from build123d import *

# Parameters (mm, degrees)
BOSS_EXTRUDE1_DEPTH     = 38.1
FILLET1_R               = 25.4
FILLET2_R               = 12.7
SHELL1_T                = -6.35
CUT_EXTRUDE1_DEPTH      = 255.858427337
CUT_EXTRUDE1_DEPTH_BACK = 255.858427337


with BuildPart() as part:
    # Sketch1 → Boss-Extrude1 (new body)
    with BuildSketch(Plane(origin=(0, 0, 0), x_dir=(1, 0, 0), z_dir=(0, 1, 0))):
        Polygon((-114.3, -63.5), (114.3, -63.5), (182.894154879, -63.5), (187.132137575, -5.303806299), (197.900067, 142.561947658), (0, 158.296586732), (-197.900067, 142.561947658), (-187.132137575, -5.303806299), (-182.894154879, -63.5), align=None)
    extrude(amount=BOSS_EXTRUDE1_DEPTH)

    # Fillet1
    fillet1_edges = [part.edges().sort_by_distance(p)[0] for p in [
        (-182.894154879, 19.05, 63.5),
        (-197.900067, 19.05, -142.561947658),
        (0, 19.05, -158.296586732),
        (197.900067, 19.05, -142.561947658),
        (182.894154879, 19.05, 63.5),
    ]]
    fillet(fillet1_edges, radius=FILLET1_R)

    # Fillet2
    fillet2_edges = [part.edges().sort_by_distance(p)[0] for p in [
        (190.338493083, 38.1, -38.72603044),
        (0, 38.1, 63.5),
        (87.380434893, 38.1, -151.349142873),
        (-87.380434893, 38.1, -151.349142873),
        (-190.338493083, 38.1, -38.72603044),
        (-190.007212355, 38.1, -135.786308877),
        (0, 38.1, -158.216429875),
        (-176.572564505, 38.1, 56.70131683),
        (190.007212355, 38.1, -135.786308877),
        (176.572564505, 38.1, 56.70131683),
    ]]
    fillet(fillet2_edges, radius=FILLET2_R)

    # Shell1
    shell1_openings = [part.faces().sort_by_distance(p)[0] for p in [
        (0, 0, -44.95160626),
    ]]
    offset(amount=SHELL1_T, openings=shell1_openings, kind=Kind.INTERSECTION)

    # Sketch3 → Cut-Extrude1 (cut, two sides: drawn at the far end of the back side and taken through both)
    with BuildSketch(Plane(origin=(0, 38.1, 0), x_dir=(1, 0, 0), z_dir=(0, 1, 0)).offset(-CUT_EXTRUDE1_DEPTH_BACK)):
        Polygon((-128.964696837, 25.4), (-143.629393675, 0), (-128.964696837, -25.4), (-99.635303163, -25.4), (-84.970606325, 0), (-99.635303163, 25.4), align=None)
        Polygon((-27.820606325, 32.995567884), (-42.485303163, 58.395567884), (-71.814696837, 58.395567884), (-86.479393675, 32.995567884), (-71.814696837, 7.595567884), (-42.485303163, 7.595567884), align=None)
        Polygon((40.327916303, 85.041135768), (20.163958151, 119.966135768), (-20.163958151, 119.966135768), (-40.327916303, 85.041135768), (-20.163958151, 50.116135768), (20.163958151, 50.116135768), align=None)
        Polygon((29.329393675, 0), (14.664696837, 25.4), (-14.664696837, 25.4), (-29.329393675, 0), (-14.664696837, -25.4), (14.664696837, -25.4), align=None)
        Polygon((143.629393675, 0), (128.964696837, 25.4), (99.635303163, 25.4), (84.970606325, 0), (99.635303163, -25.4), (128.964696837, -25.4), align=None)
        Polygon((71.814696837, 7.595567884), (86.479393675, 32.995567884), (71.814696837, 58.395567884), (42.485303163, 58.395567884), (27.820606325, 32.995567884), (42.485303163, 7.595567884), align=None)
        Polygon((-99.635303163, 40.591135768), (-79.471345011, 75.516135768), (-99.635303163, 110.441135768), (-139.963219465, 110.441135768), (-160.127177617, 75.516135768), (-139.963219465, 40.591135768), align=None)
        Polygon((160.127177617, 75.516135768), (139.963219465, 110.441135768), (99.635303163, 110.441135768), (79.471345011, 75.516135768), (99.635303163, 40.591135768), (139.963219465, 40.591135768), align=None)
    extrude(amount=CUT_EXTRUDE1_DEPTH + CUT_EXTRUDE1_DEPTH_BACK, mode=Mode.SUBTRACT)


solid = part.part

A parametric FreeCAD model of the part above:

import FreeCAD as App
import Part
import Sketcher

V = App.Vector
Q = App.Units.Quantity


def edges_at(feature, points):
    """Names of the edges that pass closest to the given points."""
    edges = feature.Shape.Edges
    near = lambda p: min(range(len(edges)), key=lambda i: edges[i].distToShape(Part.Vertex(*p))[0])
    return sorted({f"Edge{near(p) + 1}" for p in points})


def faces_at(feature, points):
    """Names of the faces that lie closest to the given points."""
    faces = feature.Shape.Faces
    near = lambda p: min(range(len(faces)), key=lambda i: faces[i].distToShape(Part.Vertex(*p))[0])
    return sorted({f"Face{near(p) + 1}" for p in points})

doc = App.newDocument("Part")
params = doc.addObject("Spreadsheet::Sheet", "Params")
for row, (alias, value) in enumerate([
    ("pad1_length", "1.5 in"),
    ("fillet_radius", "1 in"),
    ("fillet2_radius", "0.5 in"),
    ("thickness_wall", "0.25 in"),
], start=1):
    params.set(f"A{row}", alias)
    params.set(f"B{row}", "=" + value)
    params.setAlias(f"B{row}", alias)

body = doc.addObject("PartDesign::Body", "Body")

# Sketch on XZ plane
sketch1 = doc.addObject("Sketcher::SketchObject", "Sketch")
body.addObject(sketch1)
sketch1.AttachmentSupport = (doc.XZ_Plane, [""])
sketch1.MapMode = "FlatFace"
sketch1.addGeometry([
    Part.LineSegment(V(182.894155, 63.5, 0), V(187.132138, 5.303806, 0)),  # 0
    Part.LineSegment(V(187.132138, 5.303806, 0), V(197.900067, -142.561948, 0)),  # 1
    Part.LineSegment(V(197.900067, -142.561948, 0), V(0, -158.296587, 0)),  # 2
    Part.LineSegment(V(0, -158.296587, 0), V(-197.900067, -142.561948, 0)),  # 3
    Part.LineSegment(V(-197.900067, -142.561948, 0), V(-187.132138, 5.303806, 0)),  # 4
    Part.LineSegment(V(-187.132138, 5.303806, 0), V(-182.894155, 63.5, 0)),  # 5
    Part.LineSegment(V(-182.894155, 63.5, 0), V(182.894155, 63.5, 0)),  # 6
], False)
sketch1.addConstraint([
    Sketcher.Constraint("Coincident", 0, 2, 1, 1),
    Sketcher.Constraint("Coincident", 1, 2, 2, 1),
    Sketcher.Constraint("Coincident", 2, 2, 3, 1),
    Sketcher.Constraint("Coincident", 3, 2, 4, 1),
    Sketcher.Constraint("Coincident", 4, 2, 5, 1),
    Sketcher.Constraint("Coincident", 5, 2, 6, 1),
    Sketcher.Constraint("Coincident", 6, 2, 0, 1),
    Sketcher.Constraint("Horizontal", 6),
    Sketcher.Constraint("Symmetric", 1, 2, 3, 2, -2),
    Sketcher.Constraint("Symmetric", 0, 2, 4, 2, -2),
    Sketcher.Constraint("PointOnObject", 2, 2, -2),
    Sketcher.Constraint("Parallel", 0, 1),
    Sketcher.Constraint("Parallel", 4, 5),
    Sketcher.Constraint("DistanceY", -1, 1, 5, 2, Q("2.5 in")),
    Sketcher.Constraint("Distance", 0, 58.3503),
    Sketcher.Constraint("DistanceX", 6, 1, 6, 2, 365.78831),
    Sketcher.Constraint("Distance", 1, 148.257308),
    Sketcher.Constraint("DistanceX", 0, 2, 1, 2, 10.767929),
    Sketcher.Constraint("DistanceY", 2, 2, 1, 2, 15.734639),
])
pad1 = doc.addObject("PartDesign::Pad", "Pad")
body.addObject(pad1)
pad1.Profile = sketch1
pad1.setExpression("Length", "Params.pad1_length")
pad1.Reversed = True
doc.recompute()

fillet = doc.addObject("PartDesign::Fillet", "Fillet")
body.addObject(fillet)
fillet.Base = (pad1, edges_at(pad1, [
    (-182.894, 19.05, 63.5),
    (-197.9, 19.05, -142.562),
    (0, 19.05, -158.297),
    (197.9, 19.05, -142.562),
    (182.894, 19.05, 63.5),
]))
fillet.setExpression("Radius", "Params.fillet_radius")
doc.recompute()

fillet2 = doc.addObject("PartDesign::Fillet", "Fillet001")
body.addObject(fillet2)
fillet2.Base = (fillet, edges_at(fillet, [
    (191.6, 38.1, -56.047),
    (0, 38.1, 63.5),
    (87.38, 38.1, -151.349),
    (-87.38, 38.1, -151.349),
    (-191.6, 38.1, -56.047),
    (-190.007, 38.1, -135.786),
    (0, 38.1, -158.216),
    (-176.573, 38.1, 56.701),
    (190.007, 38.1, -135.786),
    (176.573, 38.1, 56.701),
]))
fillet2.setExpression("Radius", "Params.fillet2_radius")
doc.recompute()

thickness = doc.addObject("PartDesign::Thickness", "Thickness")
body.addObject(thickness)
thickness.Base = (fillet2, faces_at(fillet2, [(0, 0, -47.358)]))
thickness.setExpression("Value", "Params.thickness_wall")
thickness.Reversed = True
thickness.Join = "Intersection"

# Sketch on XZ plane
sketch2 = doc.addObject("Sketcher::SketchObject", "Sketch001")
body.addObject(sketch2)
sketch2.AttachmentSupport = (doc.XZ_Plane, [""])
sketch2.MapMode = "FlatFace"
sketch2.AttachmentOffset = App.Placement(V(0, 0, -1.5 * 25.4), App.Rotation())
sketch2.addGeometry([
    Part.LineSegment(V(-128.964697, -25.4, 0), V(-143.629394, 0, 0)),  # 0
    Part.LineSegment(V(-143.629394, 0, 0), V(-128.964697, 25.4, 0)),  # 1
    Part.LineSegment(V(-128.964697, 25.4, 0), V(-99.635303, 25.4, 0)),  # 2
    Part.LineSegment(V(-99.635303, 25.4, 0), V(-84.970606, 0, 0)),  # 3
    Part.LineSegment(V(-84.970606, 0, 0), V(-99.635303, -25.4, 0)),  # 4
    Part.LineSegment(V(-99.635303, -25.4, 0), V(-128.964697, -25.4, 0)),  # 5
    Part.LineSegment(V(-27.820606, -32.995568, 0), V(-42.485303, -58.395568, 0)),  # 6
    Part.LineSegment(V(-42.485303, -58.395568, 0), V(-71.814697, -58.395568, 0)),  # 7
    Part.LineSegment(V(-71.814697, -58.395568, 0), V(-86.479394, -32.995568, 0)),  # 8
    Part.LineSegment(V(-86.479394, -32.995568, 0), V(-71.814697, -7.595568, 0)),  # 9
    Part.LineSegment(V(-71.814697, -7.595568, 0), V(-42.485303, -7.595568, 0)),  # 10
    Part.LineSegment(V(-42.485303, -7.595568, 0), V(-27.820606, -32.995568, 0)),  # 11
    Part.LineSegment(V(40.327916, -85.041136, 0), V(20.163958, -119.966136, 0)),  # 12
    Part.LineSegment(V(20.163958, -119.966136, 0), V(-20.163958, -119.966136, 0)),  # 13
    Part.LineSegment(V(-20.163958, -119.966136, 0), V(-40.327916, -85.041136, 0)),  # 14
    Part.LineSegment(V(-40.327916, -85.041136, 0), V(-20.163958, -50.116136, 0)),  # 15
    Part.LineSegment(V(-20.163958, -50.116136, 0), V(20.163958, -50.116136, 0)),  # 16
    Part.LineSegment(V(20.163958, -50.116136, 0), V(40.327916, -85.041136, 0)),  # 17
    Part.LineSegment(V(29.329394, 0, 0), V(14.664697, -25.4, 0)),  # 18
    Part.LineSegment(V(14.664697, -25.4, 0), V(-14.664697, -25.4, 0)),  # 19
    Part.LineSegment(V(-14.664697, -25.4, 0), V(-29.329394, 0, 0)),  # 20
    Part.LineSegment(V(-29.329394, 0, 0), V(-14.664697, 25.4, 0)),  # 21
    Part.LineSegment(V(-14.664697, 25.4, 0), V(14.664697, 25.4, 0)),  # 22
    Part.LineSegment(V(14.664697, 25.4, 0), V(29.329394, 0, 0)),  # 23
    Part.LineSegment(V(143.629394, 0, 0), V(128.964697, -25.4, 0)),  # 24
    Part.LineSegment(V(128.964697, -25.4, 0), V(99.635303, -25.4, 0)),  # 25
    Part.LineSegment(V(99.635303, -25.4, 0), V(84.970606, 0, 0)),  # 26
    Part.LineSegment(V(84.970606, 0, 0), V(99.635303, 25.4, 0)),  # 27
    Part.LineSegment(V(99.635303, 25.4, 0), V(128.964697, 25.4, 0)),  # 28
    Part.LineSegment(V(128.964697, 25.4, 0), V(143.629394, 0, 0)),  # 29
    Part.LineSegment(V(71.814697, -7.595568, 0), V(86.479394, -32.995568, 0)),  # 30
    Part.LineSegment(V(86.479394, -32.995568, 0), V(71.814697, -58.395568, 0)),  # 31
    Part.LineSegment(V(71.814697, -58.395568, 0), V(42.485303, -58.395568, 0)),  # 32
    Part.LineSegment(V(42.485303, -58.395568, 0), V(27.820606, -32.995568, 0)),  # 33
    Part.LineSegment(V(27.820606, -32.995568, 0), V(42.485303, -7.595568, 0)),  # 34
    Part.LineSegment(V(42.485303, -7.595568, 0), V(71.814697, -7.595568, 0)),  # 35
    Part.LineSegment(V(-99.635303, -40.591136, 0), V(-79.471345, -75.516136, 0)),  # 36
    Part.LineSegment(V(-79.471345, -75.516136, 0), V(-99.635303, -110.441136, 0)),  # 37
    Part.LineSegment(V(-99.635303, -110.441136, 0), V(-139.963219, -110.441136, 0)),  # 38
    Part.LineSegment(V(-139.963219, -110.441136, 0), V(-160.127178, -75.516136, 0)),  # 39
    Part.LineSegment(V(-160.127178, -75.516136, 0), V(-139.963219, -40.591136, 0)),  # 40
    Part.LineSegment(V(-139.963219, -40.591136, 0), V(-99.635303, -40.591136, 0)),  # 41
    Part.LineSegment(V(160.127178, -75.516136, 0), V(139.963219, -110.441136, 0)),  # 42
    Part.LineSegment(V(139.963219, -110.441136, 0), V(99.635303, -110.441136, 0)),  # 43
    Part.LineSegment(V(99.635303, -110.441136, 0), V(79.471345, -75.516136, 0)),  # 44
    Part.LineSegment(V(79.471345, -75.516136, 0), V(99.635303, -40.591136, 0)),  # 45
    Part.LineSegment(V(99.635303, -40.591136, 0), V(139.963219, -40.591136, 0)),  # 46
    Part.LineSegment(V(139.963219, -40.591136, 0), V(160.127178, -75.516136, 0)),  # 47
], False)
sketch2.addConstraint([
    Sketcher.Constraint("Coincident", 0, 2, 1, 1),
    Sketcher.Constraint("Coincident", 1, 2, 2, 1),
    Sketcher.Constraint("Coincident", 2, 2, 3, 1),
    Sketcher.Constraint("Coincident", 3, 2, 4, 1),
    Sketcher.Constraint("Coincident", 4, 2, 5, 1),
    Sketcher.Constraint("Coincident", 5, 2, 0, 1),
    Sketcher.Constraint("Coincident", 6, 2, 7, 1),
    Sketcher.Constraint("Coincident", 7, 2, 8, 1),
    Sketcher.Constraint("Coincident", 8, 2, 9, 1),
    Sketcher.Constraint("Coincident", 9, 2, 10, 1),
    Sketcher.Constraint("Coincident", 10, 2, 11, 1),
    Sketcher.Constraint("Coincident", 11, 2, 6, 1),
    Sketcher.Constraint("Coincident", 12, 2, 13, 1),
    Sketcher.Constraint("Coincident", 13, 2, 14, 1),
    Sketcher.Constraint("Coincident", 14, 2, 15, 1),
    Sketcher.Constraint("Coincident", 15, 2, 16, 1),
    Sketcher.Constraint("Coincident", 16, 2, 17, 1),
    Sketcher.Constraint("Coincident", 17, 2, 12, 1),
    Sketcher.Constraint("Coincident", 18, 2, 19, 1),
    Sketcher.Constraint("Coincident", 19, 2, 20, 1),
    Sketcher.Constraint("Coincident", 20, 2, 21, 1),
    Sketcher.Constraint("Coincident", 21, 2, 22, 1),
    Sketcher.Constraint("Coincident", 22, 2, 23, 1),
    Sketcher.Constraint("Coincident", 23, 2, 18, 1),
    Sketcher.Constraint("Coincident", 24, 2, 25, 1),
    Sketcher.Constraint("Coincident", 25, 2, 26, 1),
    Sketcher.Constraint("Coincident", 26, 2, 27, 1),
    Sketcher.Constraint("Coincident", 27, 2, 28, 1),
    Sketcher.Constraint("Coincident", 28, 2, 29, 1),
    Sketcher.Constraint("Coincident", 29, 2, 24, 1),
    Sketcher.Constraint("Coincident", 30, 2, 31, 1),
    Sketcher.Constraint("Coincident", 31, 2, 32, 1),
    Sketcher.Constraint("Coincident", 32, 2, 33, 1),
    Sketcher.Constraint("Coincident", 33, 2, 34, 1),
    Sketcher.Constraint("Coincident", 34, 2, 35, 1),
    Sketcher.Constraint("Coincident", 35, 2, 30, 1),
    Sketcher.Constraint("Coincident", 36, 2, 37, 1),
    Sketcher.Constraint("Coincident", 37, 2, 38, 1),
    Sketcher.Constraint("Coincident", 38, 2, 39, 1),
    Sketcher.Constraint("Coincident", 39, 2, 40, 1),
    Sketcher.Constraint("Coincident", 40, 2, 41, 1),
    Sketcher.Constraint("Coincident", 41, 2, 36, 1),
    Sketcher.Constraint("Coincident", 42, 2, 43, 1),
    Sketcher.Constraint("Coincident", 43, 2, 44, 1),
    Sketcher.Constraint("Coincident", 44, 2, 45, 1),
    Sketcher.Constraint("Coincident", 45, 2, 46, 1),
    Sketcher.Constraint("Coincident", 46, 2, 47, 1),
    Sketcher.Constraint("Coincident", 47, 2, 42, 1),
    Sketcher.Constraint("Horizontal", 2),
    Sketcher.Constraint("Horizontal", 5),
    Sketcher.Constraint("Horizontal", 7),
    Sketcher.Constraint("Horizontal", 10),
    Sketcher.Constraint("Horizontal", 13),
    Sketcher.Constraint("Horizontal", 16),
    Sketcher.Constraint("Horizontal", 19),
    Sketcher.Constraint("Horizontal", 22),
    Sketcher.Constraint("Horizontal", 25),
    Sketcher.Constraint("Horizontal", 28),
    Sketcher.Constraint("Horizontal", 32),
    Sketcher.Constraint("Horizontal", 35),
    Sketcher.Constraint("Horizontal", 38),
    Sketcher.Constraint("Horizontal", 41),
    Sketcher.Constraint("Horizontal", 43),
    Sketcher.Constraint("Horizontal", 46),
    Sketcher.Constraint("Symmetric", 18, 2, 21, 2, -1, 1),
    Sketcher.Constraint("Symmetric", 20, 2, 23, 2, -1, 1),
    Sketcher.Constraint("Symmetric", 1, 2, 24, 2, -1, 1),
    Sketcher.Constraint("Symmetric", 3, 2, 26, 2, -1, 1),
    Sketcher.Constraint("Symmetric", 4, 2, 27, 2, -1, 1),
    Sketcher.Constraint("Symmetric", 0, 2, 29, 2, -1, 1),
    Sketcher.Constraint("Symmetric", 14, 2, 17, 2, -2),
    Sketcher.Constraint("Symmetric", 5, 2, 24, 2, -2),
    Sketcher.Constraint("Symmetric", 8, 2, 30, 2, -2),
    Sketcher.Constraint("Symmetric", 7, 2, 31, 2, -2),
    Sketcher.Constraint("Symmetric", 11, 2, 33, 2, -2),
    Sketcher.Constraint("Symmetric", 10, 2, 34, 2, -2),
    Sketcher.Constraint("Symmetric", 38, 2, 42, 2, -2),
    Sketcher.Constraint("Symmetric", 36, 2, 44, 2, -2),
    Sketcher.Constraint("Symmetric", 41, 2, 45, 2, -2),
    Sketcher.Constraint("Symmetric", 39, 2, 47, 2, -2),
    Sketcher.Constraint("PointOnObject", 0, 2, -1),
    Sketcher.Constraint("PointOnObject", 3, 2, -1),
    Sketcher.Constraint("PointOnObject", 20, 2, -1),
    Sketcher.Constraint("Parallel", 0, 3),
    Sketcher.Constraint("Parallel", 1, 4),
    Sketcher.Constraint("Parallel", 4, 6),
    Sketcher.Constraint("Parallel", 3, 8),
    Sketcher.Constraint("Parallel", 6, 9),
    Sketcher.Constraint("Parallel", 8, 11),
    Sketcher.Constraint("Parallel", 9, 12),
    Sketcher.Constraint("Parallel", 11, 14),
    Sketcher.Constraint("Parallel", 12, 15),
    Sketcher.Constraint("Parallel", 14, 17),
    Sketcher.Constraint("Parallel", 15, 18),
    Sketcher.Constraint("Parallel", 17, 20),
    Sketcher.Constraint("Parallel", 20, 23),
    Sketcher.Constraint("Parallel", 23, 26),
    Sketcher.Constraint("Parallel", 26, 29),
    Sketcher.Constraint("Parallel", 29, 30),
    Sketcher.Constraint("Parallel", 30, 33),
    Sketcher.Constraint("Parallel", 33, 36),
    Sketcher.Constraint("Parallel", 34, 37),
    Sketcher.Constraint("Parallel", 36, 39),
    Sketcher.Constraint("Parallel", 37, 40),
    Sketcher.Constraint("Parallel", 39, 44),
    Sketcher.Constraint("Parallel", 44, 47),
    Sketcher.Constraint("Horizontal", 8, 2, 11, 2),
    Sketcher.Constraint("Horizontal", 5, 2, 18, 2),
    Sketcher.Constraint("Horizontal", 36, 2, 39, 2),
    Sketcher.Constraint("Vertical", 7, 2, 9, 2),
    Sketcher.Constraint("Vertical", 13, 2, 15, 2),
    Sketcher.Constraint("Vertical", 4, 2, 37, 2),
    Sketcher.Constraint("Vertical", 38, 2, 40, 2),
    Sketcher.Constraint("Equal", 5, 7),
    Sketcher.Constraint("Equal", 10, 19),
    Sketcher.Constraint("Equal", 16, 38),
    Sketcher.Constraint("Equal", 4, 6),
    Sketcher.Constraint("Equal", 17, 36),
    Sketcher.Constraint("DistanceY", -1, 1, 1, 2, Q("1 in")),
    Sketcher.Constraint("Angle", 0, Q("120 deg")),
    Sketcher.Constraint("DistanceY", 37, 2, 14, 2, Q("1 in")),
    Sketcher.Constraint("DistanceX", 18, 2, 24, 2, Q("4.5 in")),
    Sketcher.Constraint("DistanceX", 4, 2, 6, 2, Q("2.25 in")),
    Sketcher.Constraint("DistanceY", 12, 2, 16, 2, Q("2.75 in")),
    Sketcher.Constraint("DistanceX", 2, 1, 2, 2, 29.329394),
    Sketcher.Constraint("DistanceX", 13, 2, 13, 1, 40.327916),
    Sketcher.Constraint("DistanceY", 6, 2, -1, 1, 58.395568),
    Sketcher.Constraint("DistanceY", 12, 2, -1, 1, 119.966136),
])
pocket1 = doc.addObject("PartDesign::Pocket", "Pocket")
body.addObject(pocket1)
pocket1.Profile = sketch2
pocket1.Type = "ThroughAll"
pocket1.Midplane = True

doc.recompute()
